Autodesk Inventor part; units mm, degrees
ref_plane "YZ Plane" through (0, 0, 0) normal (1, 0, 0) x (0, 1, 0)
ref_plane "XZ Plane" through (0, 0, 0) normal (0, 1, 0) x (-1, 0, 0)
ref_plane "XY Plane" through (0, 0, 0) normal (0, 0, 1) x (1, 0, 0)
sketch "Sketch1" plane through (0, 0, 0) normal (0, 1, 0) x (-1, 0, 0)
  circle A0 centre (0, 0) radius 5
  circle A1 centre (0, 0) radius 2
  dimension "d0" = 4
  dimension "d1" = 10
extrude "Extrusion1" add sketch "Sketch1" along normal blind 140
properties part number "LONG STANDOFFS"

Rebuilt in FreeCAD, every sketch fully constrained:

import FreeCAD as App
import Part
import Sketcher
from FreeCAD import Vector

doc = App.newDocument("Part")
body = doc.addObject("PartDesign::Body", "Body")

sketch1 = body.newObject("Sketcher::SketchObject", "Sketch")
sketch1.AttachmentSupport = (doc.getObject("XZ_Plane"), [""])
sketch1.MapMode = "FlatFace"
sketch1.addGeometry(Part.Circle(Vector(0, 0, 0), Vector(0, 0, 1), 5), False)
sketch1.addGeometry(Part.Circle(Vector(0, 0, 0), Vector(0, 0, 1), 2), False)
sketch1.addConstraint(Sketcher.Constraint("Coincident", 0, 3, -1, 1))
sketch1.addConstraint(Sketcher.Constraint("Coincident", 1, 3, -1, 1))
sketch1.addConstraint(Sketcher.Constraint("Diameter", 0, 10.0))
sketch1.addConstraint(Sketcher.Constraint("Diameter", 1, 4.0))
pad1 = body.newObject("PartDesign::Pad", "Pad")
pad1.Profile = sketch1
pad1.Length = 140
pad1.Reversed = True

doc.recompute()
